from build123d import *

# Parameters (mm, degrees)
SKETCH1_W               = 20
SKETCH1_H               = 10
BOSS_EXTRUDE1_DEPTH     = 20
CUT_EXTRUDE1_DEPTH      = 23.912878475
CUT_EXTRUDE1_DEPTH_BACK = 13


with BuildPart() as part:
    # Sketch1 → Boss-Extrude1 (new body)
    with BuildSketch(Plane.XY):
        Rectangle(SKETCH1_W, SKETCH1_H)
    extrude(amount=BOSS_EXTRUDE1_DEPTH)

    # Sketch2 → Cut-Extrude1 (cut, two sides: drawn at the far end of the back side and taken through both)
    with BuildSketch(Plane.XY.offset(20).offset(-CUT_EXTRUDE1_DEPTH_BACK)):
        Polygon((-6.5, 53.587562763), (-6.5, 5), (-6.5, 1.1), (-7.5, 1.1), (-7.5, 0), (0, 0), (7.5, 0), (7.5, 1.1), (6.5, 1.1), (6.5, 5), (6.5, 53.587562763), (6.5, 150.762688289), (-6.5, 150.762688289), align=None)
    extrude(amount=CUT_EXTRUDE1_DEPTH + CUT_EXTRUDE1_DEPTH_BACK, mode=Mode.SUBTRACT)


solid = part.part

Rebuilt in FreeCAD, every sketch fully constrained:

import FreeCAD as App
import Part
import Sketcher

V = App.Vector

doc = App.newDocument("Part")
body = doc.addObject("PartDesign::Body", "Body")

# Sketch on XY plane
sketch1 = body.newObject("Sketcher::SketchObject", "Sketch")
sketch1.AttachmentSupport = (doc.getObject("XY_Plane"), [""])
sketch1.MapMode = "FlatFace"
sketch1.addGeometry([
    Part.LineSegment(V(-10, 5, 0), V(-10, -5, 0)),
    Part.LineSegment(V(-10, -5, 0), V(10, -5, 0)),
    Part.LineSegment(V(10, -5, 0), V(10, 5, 0)),
    Part.LineSegment(V(10, 5, 0), V(-10, 5, 0)),
], False)
sketch1.addConstraint([
    Sketcher.Constraint("Coincident", 0, 2, 1, 1),
    Sketcher.Constraint("Coincident", 1, 2, 2, 1),
    Sketcher.Constraint("Coincident", 2, 2, 3, 1),
    Sketcher.Constraint("Coincident", 3, 2, 0, 1),
    Sketcher.Constraint("Vertical", 0),
    Sketcher.Constraint("Horizontal", 1),
    Sketcher.Constraint("Vertical", 2),
    Sketcher.Constraint("Horizontal", 3),
    Sketcher.Constraint("Symmetric", 0, 2, 2, 2, -1, 1),
    Sketcher.Constraint("DistanceX", 1, 1, 1, 2, 20.0),
    Sketcher.Constraint("DistanceY", 0, 2, 0, 1, 10.0),
])
pad1 = body.newObject("PartDesign::Pad", "Pad")
pad1.Profile = sketch1
pad1.Length = 20

# Sketch on XY plane
sketch2 = body.newObject("Sketcher::SketchObject", "Sketch001")
sketch2.AttachmentSupport = (doc.getObject("XY_Plane"), [""])
sketch2.MapMode = "FlatFace"
sketch2.AttachmentOffset = App.Placement(V(0, 0, 20), App.Rotation())
sketch2.addGeometry([
    Part.LineSegment(V(-6.5, 1.1, 0), V(-7.5, 1.1, 0)),  # 0
    Part.LineSegment(V(-7.5, 1.1, 0), V(-7.5, 0, 0)),  # 1
    Part.LineSegment(V(-7.5, 0, 0), V(7.5, 0, 0)),  # 2
    Part.LineSegment(V(7.5, 0, 0), V(7.5, 1.1, 0)),  # 3
    Part.LineSegment(V(7.5, 1.1, 0), V(6.5, 1.1, 0)),  # 4
    Part.LineSegment(V(6.5, 1.1, 0), V(6.5, 150.762688, 0)),  # 5
    Part.LineSegment(V(6.5, 150.762688, 0), V(-6.5, 150.762688, 0)),  # 6
    Part.LineSegment(V(-6.5, 150.762688, 0), V(-6.5, 1.1, 0)),  # 7
], False)
sketch2.addConstraint([
    Sketcher.Constraint("Coincident", 0, 2, 1, 1),
    Sketcher.Constraint("Coincident", 1, 2, 2, 1),
    Sketcher.Constraint("Coincident", 2, 2, 3, 1),
    Sketcher.Constraint("Coincident", 3, 2, 4, 1),
    Sketcher.Constraint("Coincident", 4, 2, 5, 1),
    Sketcher.Constraint("Coincident", 5, 2, 6, 1),
    Sketcher.Constraint("Coincident", 6, 2, 7, 1),
    Sketcher.Constraint("Coincident", 7, 2, 0, 1),
    Sketcher.Constraint("Horizontal", 0),
    Sketcher.Constraint("Vertical", 1),
    Sketcher.Constraint("Horizontal", 2),
    Sketcher.Constraint("Vertical", 3),
    Sketcher.Constraint("Horizontal", 4),
    Sketcher.Constraint("Vertical", 5),
    Sketcher.Constraint("Horizontal", 6),
    Sketcher.Constraint("Vertical", 7),
    Sketcher.Constraint("Symmetric", 1, 2, 2, 2, -1, 1),
    Sketcher.Constraint("Symmetric", 4, 2, 7, 2, -2),
    Sketcher.Constraint("DistanceX", 0, 2, 0, 1, 1.0),
    Sketcher.Constraint("DistanceX", 2, 1, 2, 2, 15.0),
    Sketcher.Constraint("DistanceY", 1, 2, 1, 1, 1.1),
    Sketcher.Constraint("DistanceY", 5, 1, 5, 2, 149.662688),
])
pocket1 = body.newObject("PartDesign::Pocket", "Pocket")
pocket1.Profile = sketch2
pocket1.Type = "TwoLengths"
pocket1.Length = 23.912878
pocket1.Length2 = 13
pocket1.Reversed = True

doc.recompute()
